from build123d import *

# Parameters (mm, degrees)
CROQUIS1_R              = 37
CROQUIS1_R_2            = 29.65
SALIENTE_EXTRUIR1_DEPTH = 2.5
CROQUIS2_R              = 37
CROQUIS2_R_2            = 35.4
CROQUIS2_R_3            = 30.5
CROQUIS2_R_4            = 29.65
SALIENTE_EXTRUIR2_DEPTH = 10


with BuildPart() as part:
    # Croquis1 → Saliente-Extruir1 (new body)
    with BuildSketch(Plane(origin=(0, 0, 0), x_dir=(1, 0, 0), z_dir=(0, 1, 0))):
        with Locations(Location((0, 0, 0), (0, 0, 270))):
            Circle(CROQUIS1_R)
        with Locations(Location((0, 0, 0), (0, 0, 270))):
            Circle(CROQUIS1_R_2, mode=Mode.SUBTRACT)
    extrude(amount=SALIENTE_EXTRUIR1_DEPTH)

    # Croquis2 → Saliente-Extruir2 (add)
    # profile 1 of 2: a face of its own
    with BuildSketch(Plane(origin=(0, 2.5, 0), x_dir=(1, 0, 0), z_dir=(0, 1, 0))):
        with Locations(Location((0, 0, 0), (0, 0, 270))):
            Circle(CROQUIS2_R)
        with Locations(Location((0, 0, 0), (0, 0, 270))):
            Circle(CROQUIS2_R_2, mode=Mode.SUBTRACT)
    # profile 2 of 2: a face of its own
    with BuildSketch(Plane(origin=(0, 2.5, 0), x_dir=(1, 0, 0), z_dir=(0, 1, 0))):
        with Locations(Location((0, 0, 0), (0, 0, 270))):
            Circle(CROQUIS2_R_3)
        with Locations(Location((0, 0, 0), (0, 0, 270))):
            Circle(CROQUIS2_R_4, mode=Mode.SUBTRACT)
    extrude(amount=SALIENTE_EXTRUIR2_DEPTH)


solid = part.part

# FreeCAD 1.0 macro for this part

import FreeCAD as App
import Part
import Sketcher
from FreeCAD import Vector
Q = App.Units.Quantity

doc = App.newDocument("Part")
body = doc.addObject("PartDesign::Body", "Body")

# Sketch on XZ plane
sketch1 = body.newObject("Sketcher::SketchObject", "Sketch")
sketch1.AttachmentSupport = (doc.getObject("XZ_Plane"), [""])
sketch1.MapMode = "FlatFace"
sketch1.addGeometry(Part.Circle(Vector(0, 0, 0), Vector(0, 0, 1), 37), False)
sketch1.addGeometry(Part.Circle(Vector(0, 0, 0), Vector(0, 0, 1), 29.65), False)
sketch1.addConstraint(Sketcher.Constraint("Coincident", 0, 3, -1, 1))
sketch1.addConstraint(Sketcher.Constraint("Coincident", 1, 3, -1, 1))
sketch1.addConstraint(Sketcher.Constraint("Diameter", 0, Q("74 mm")))
sketch1.addConstraint(Sketcher.Constraint("Diameter", 1, Q("59.3 mm")))
pad1 = body.newObject("PartDesign::Pad", "Pad")
pad1.Profile = sketch1
pad1.Length = 2.5
pad1.Reversed = True

# Sketch on XZ plane
sketch2 = body.newObject("Sketcher::SketchObject", "Sketch001")
sketch2.AttachmentSupport = (doc.getObject("XZ_Plane"), [""])
sketch2.MapMode = "FlatFace"
sketch2.AttachmentOffset = App.Placement(Vector(0, 0, -2.5), App.Rotation())
sketch2.addGeometry(Part.Circle(Vector(0, 0, 0), Vector(0, 0, 1), 37), False)
sketch2.addGeometry(Part.Circle(Vector(0, 0, 0), Vector(0, 0, 1), 35.4), False)
sketch2.addGeometry(Part.Circle(Vector(0, 0, 0), Vector(0, 0, 1), 30.5), False)
sketch2.addGeometry(Part.Circle(Vector(0, 0, 0), Vector(0, 0, 1), 29.65), False)
sketch2.addConstraint(Sketcher.Constraint("Coincident", 0, 3, -1, 1))
sketch2.addConstraint(Sketcher.Constraint("Coincident", 1, 3, -1, 1))
sketch2.addConstraint(Sketcher.Constraint("Coincident", 2, 3, -1, 1))
sketch2.addConstraint(Sketcher.Constraint("Coincident", 3, 3, -1, 1))
sketch2.addConstraint(Sketcher.Constraint("Diameter", 0, Q("74 mm")))
sketch2.addConstraint(Sketcher.Constraint("Diameter", 2, Q("61 mm")))
sketch2.addConstraint(Sketcher.Constraint("Diameter", 1, Q("70.8 mm")))
sketch2.addConstraint(Sketcher.Constraint("Diameter", 3, Q("59.3 mm")))
pad2 = body.newObject("PartDesign::Pad", "Pad001")
pad2.Profile = sketch2
pad2.Length = 10
pad2.Reversed = True

doc.recompute()
